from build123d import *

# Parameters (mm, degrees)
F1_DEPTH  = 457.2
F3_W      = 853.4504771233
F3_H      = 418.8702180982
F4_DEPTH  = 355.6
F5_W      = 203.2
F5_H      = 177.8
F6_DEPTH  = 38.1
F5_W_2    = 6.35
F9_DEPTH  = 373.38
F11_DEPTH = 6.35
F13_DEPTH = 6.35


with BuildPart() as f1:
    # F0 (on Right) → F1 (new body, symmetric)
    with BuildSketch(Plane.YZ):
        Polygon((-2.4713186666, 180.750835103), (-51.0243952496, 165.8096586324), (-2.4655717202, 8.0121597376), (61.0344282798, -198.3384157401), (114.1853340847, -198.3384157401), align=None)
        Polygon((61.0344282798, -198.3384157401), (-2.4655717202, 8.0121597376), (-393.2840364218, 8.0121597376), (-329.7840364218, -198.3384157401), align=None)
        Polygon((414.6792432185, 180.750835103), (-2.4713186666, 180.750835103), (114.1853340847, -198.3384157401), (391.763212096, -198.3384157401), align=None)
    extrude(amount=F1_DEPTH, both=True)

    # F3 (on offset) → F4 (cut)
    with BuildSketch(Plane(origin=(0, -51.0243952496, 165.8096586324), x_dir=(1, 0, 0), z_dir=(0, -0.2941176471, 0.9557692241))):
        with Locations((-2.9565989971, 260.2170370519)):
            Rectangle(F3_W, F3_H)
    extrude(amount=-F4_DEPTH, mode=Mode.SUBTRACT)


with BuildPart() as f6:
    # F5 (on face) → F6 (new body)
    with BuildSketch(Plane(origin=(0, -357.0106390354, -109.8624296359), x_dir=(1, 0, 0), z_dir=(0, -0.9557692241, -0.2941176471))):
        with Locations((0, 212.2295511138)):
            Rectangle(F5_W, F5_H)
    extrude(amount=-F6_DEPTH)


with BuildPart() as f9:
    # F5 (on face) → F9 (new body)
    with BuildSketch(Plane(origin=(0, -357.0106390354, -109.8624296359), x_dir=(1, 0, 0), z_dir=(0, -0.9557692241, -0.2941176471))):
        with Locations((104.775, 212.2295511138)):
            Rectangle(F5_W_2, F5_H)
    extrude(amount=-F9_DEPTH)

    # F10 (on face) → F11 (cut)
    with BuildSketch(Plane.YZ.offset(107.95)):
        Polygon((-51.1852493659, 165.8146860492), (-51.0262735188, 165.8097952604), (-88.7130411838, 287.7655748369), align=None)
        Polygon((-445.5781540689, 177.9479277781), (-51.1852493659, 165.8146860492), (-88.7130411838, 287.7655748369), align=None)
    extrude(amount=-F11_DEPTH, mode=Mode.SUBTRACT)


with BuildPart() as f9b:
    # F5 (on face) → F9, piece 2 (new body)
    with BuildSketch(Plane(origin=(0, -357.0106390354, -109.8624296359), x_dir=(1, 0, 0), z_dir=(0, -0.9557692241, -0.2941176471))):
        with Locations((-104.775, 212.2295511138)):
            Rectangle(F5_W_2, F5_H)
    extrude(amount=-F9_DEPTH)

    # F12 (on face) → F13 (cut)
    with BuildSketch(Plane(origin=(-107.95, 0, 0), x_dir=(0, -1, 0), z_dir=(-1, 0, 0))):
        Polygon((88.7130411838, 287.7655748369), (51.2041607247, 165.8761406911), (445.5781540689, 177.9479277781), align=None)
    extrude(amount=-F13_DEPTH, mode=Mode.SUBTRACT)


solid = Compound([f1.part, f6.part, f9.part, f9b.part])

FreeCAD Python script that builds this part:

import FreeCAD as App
import Part
import Sketcher
from FreeCAD import Vector
Q = App.Units.Quantity


def add_polygon(sketch, points):
    """Adds a closed chain of lines whose ends are joined by coincident constraints."""
    first, n = sketch.GeometryCount, len(points)
    for a, b in zip(points, points[1:] + points[:1]):
        sketch.addGeometry(Part.LineSegment(App.Vector(*a, 0), App.Vector(*b, 0)), False)
    for i in range(n):
        sketch.addConstraint(Sketcher.Constraint("Coincident", first + i, 2, first + (i + 1) % n, 1))

doc = App.newDocument("Part")
body = doc.addObject("PartDesign::Body", "Body")

sketch1 = body.newObject("Sketcher::SketchObject", "Sketch")
sketch1.AttachmentSupport = (doc.getObject("YZ_Plane"), [""])
sketch1.MapMode = "FlatFace"
add_polygon(sketch1, [(-2.471319, 180.750835), (-51.024395, 165.809659), (-2.465572, 8.01216), (-393.284036, 8.01216), (-329.784036, -198.338416), (391.763212, -198.338416), (414.679243, 180.750835)])
sketch1.addConstraint([
    Sketcher.Constraint("Horizontal", 2),
    Sketcher.Constraint("Horizontal", 4),
    Sketcher.Constraint("Horizontal", 6),
    Sketcher.Constraint("Perpendicular", 0, 1),
    Sketcher.Constraint("Parallel", 1, 3),
    Sketcher.Constraint("Distance", 0, Q("2 in")),
    Sketcher.Constraint("Distance", 1, Q("6.5 in")),
    Sketcher.Constraint("Distance", 3, Q("8.5 in")),
    Sketcher.Constraint("DistanceX", 2, 2, 3, 2, Q("2.5 in")),
    Sketcher.Constraint("DistanceX", 4, 1, 4, 2, 721.547249),
    Sketcher.Constraint("DistanceX", 6, 2, 6, 1, 417.150562),
    Sketcher.Constraint("Distance", 5, 379.781259),
    Sketcher.Constraint("DistanceY", -1, 1, 0, 2, 165.809659),
    Sketcher.Constraint("DistanceX", 1, 2, -1, 1, 2.465572),
])
pad1 = body.newObject("PartDesign::Pad", "Pad")
pad1.Profile = sketch1
pad1.Length = Q("36 in")
pad1.Midplane = True

sketch2 = body.newObject("Sketcher::SketchObject", "Sketch001")
sketch2.Placement = App.Placement(Vector(0, -51.024395, 165.809659), App.Rotation(Vector(1, 0, 0), Vector(0, 0.955769224, 0.294117647), Vector(0, -0.294117647, 0.955769224), "ZXY"))
add_polygon(sketch2, [(-429.681838, 469.652146), (-429.681838, 50.781928), (423.76864, 50.781928), (423.76864, 469.652146)])
sketch2.addConstraint([
    Sketcher.Constraint("Vertical", 0),
    Sketcher.Constraint("Horizontal", 1),
    Sketcher.Constraint("Vertical", 2),
    Sketcher.Constraint("Horizontal", 3),
    Sketcher.Constraint("DistanceY", 0, 2, 0, 1, 418.870218),
    Sketcher.Constraint("DistanceX", 1, 1, 1, 2, 853.450477),
    Sketcher.Constraint("DistanceX", -1, 1, 1, 2, 423.76864),
    Sketcher.Constraint("DistanceY", -1, 1, 0, 2, 50.781928),
])
pocket1 = body.newObject("PartDesign::Pocket", "Pocket")
pocket1.Profile = sketch2
pocket1.Length = Q("14 in")
body2 = doc.addObject("PartDesign::Body", "Body001")

sketch3 = body2.newObject("Sketcher::SketchObject", "Sketch002")
sketch3.Placement = App.Placement(Vector(0, -357.010639, -109.86243), App.Rotation(Vector(1, 0, 0), Vector(0, -0.294117647, 0.955769224), Vector(0, -0.955769224, -0.294117647), "ZXY"))
add_polygon(sketch3, [(-101.6, 301.129551), (-101.6, 123.329551), (101.6, 123.329551), (101.6, 301.129551)])
sketch3.addConstraint([
    Sketcher.Constraint("Vertical", 0),
    Sketcher.Constraint("Horizontal", 1),
    Sketcher.Constraint("Vertical", 2),
    Sketcher.Constraint("Horizontal", 3),
    Sketcher.Constraint("DistanceX", 1, 1, 1, 2, Q("8 in")),
    Sketcher.Constraint("DistanceY", 0, 2, 0, 1, Q("7 in")),
    Sketcher.Constraint("DistanceX", 0, 2, -1, 1, Q("4 in")),
    Sketcher.Constraint("DistanceY", -1, 1, 0, 2, 123.329551),
])
pad2 = body2.newObject("PartDesign::Pad", "Pad001")
pad2.Profile = sketch3
pad2.Length = Q("1.5 in")
pad2.Reversed = True
body3 = doc.addObject("PartDesign::Body", "Body002")

sketch4 = body3.newObject("Sketcher::SketchObject", "Sketch003")
sketch4.Placement = App.Placement(Vector(0, -357.010639, -109.86243), App.Rotation(Vector(1, 0, 0), Vector(0, -0.294117647, 0.955769224), Vector(0, -0.955769224, -0.294117647), "ZXY"))
add_polygon(sketch4, [(101.6, 301.129551), (101.6, 123.329551), (107.95, 123.329551), (107.95, 301.129551)])
sketch4.addConstraint([
    Sketcher.Constraint("Vertical", 0),
    Sketcher.Constraint("Horizontal", 1),
    Sketcher.Constraint("Vertical", 2),
    Sketcher.Constraint("Horizontal", 3),
    Sketcher.Constraint("DistanceY", 0, 2, 0, 1, Q("7 in")),
    Sketcher.Constraint("DistanceX", -1, 1, 0, 2, Q("4 in")),
    Sketcher.Constraint("DistanceX", 1, 1, 1, 2, Q("0.25 in")),
    Sketcher.Constraint("DistanceY", -1, 1, 0, 2, 123.329551),
])
pad3 = body3.newObject("PartDesign::Pad", "Pad002")
pad3.Profile = sketch4
pad3.Length = Q("14.7 in")
pad3.Reversed = True

sketch5 = body3.newObject("Sketcher::SketchObject", "Sketch004")
sketch5.AttachmentSupport = (doc.getObject("YZ_Plane002"), [""])
sketch5.MapMode = "FlatFace"
sketch5.AttachmentOffset = App.Placement(Vector(0, 0, 4.25 * 25.4), App.Rotation())
add_polygon(sketch5, [(-51.185249, 165.814686), (-51.026274, 165.809795), (-88.713041, 287.765575), (-445.578154, 177.947928)])
sketch5.addConstraint([
    Sketcher.Constraint("Parallel", 0, 3),
    Sketcher.Constraint("Distance", 2, Q("14.7 in")),
    Sketcher.Constraint("Distance", 0, 0.159051),
    Sketcher.Constraint("DistanceX", 1, 2, -1, 1, 88.713041),
    Sketcher.Constraint("DistanceX", 3, 2, -1, 1, 51.185249),
    Sketcher.Constraint("DistanceY", 0, 2, 1, 2, 121.95578),
    Sketcher.Constraint("DistanceX", 2, 2, 0, 2, 394.551881),
    Sketcher.Constraint("DistanceY", -1, 1, 0, 2, 165.809795),
])
pocket2 = body3.newObject("PartDesign::Pocket", "Pocket001")
pocket2.Profile = sketch5
pocket2.Length = Q("0.25 in")
body4 = doc.addObject("PartDesign::Body", "Body003")

sketch6 = body4.newObject("Sketcher::SketchObject", "Sketch005")
sketch6.Placement = App.Placement(Vector(0, -357.010639, -109.86243), App.Rotation(Vector(1, 0, 0), Vector(0, -0.294117647, 0.955769224), Vector(0, -0.955769224, -0.294117647), "ZXY"))
add_polygon(sketch6, [(-107.95, 301.129551), (-107.95, 123.329551), (-101.6, 123.329551), (-101.6, 301.129551)])
sketch6.addConstraint([
    Sketcher.Constraint("Vertical", 0),
    Sketcher.Constraint("Horizontal", 1),
    Sketcher.Constraint("Vertical", 2),
    Sketcher.Constraint("Horizontal", 3),
    Sketcher.Constraint("DistanceY", 0, 2, 0, 1, Q("7 in")),
    Sketcher.Constraint("DistanceX", 1, 2, -1, 1, Q("4 in")),
    Sketcher.Constraint("DistanceX", 1, 1, 1, 2, Q("0.25 in")),
    Sketcher.Constraint("DistanceY", -1, 1, 0, 2, 123.329551),
])
pad4 = body4.newObject("PartDesign::Pad", "Pad003")
pad4.Profile = sketch6
pad4.Length = Q("14.7 in")
pad4.Reversed = True

sketch7 = body4.newObject("Sketcher::SketchObject", "Sketch006")
sketch7.AttachmentSupport = (doc.getObject("YZ_Plane003"), [""])
sketch7.MapMode = "FlatFace"
sketch7.AttachmentOffset = App.Placement(Vector(0, 0, -4.25 * 25.4), App.Rotation())
add_polygon(sketch7, [(-88.713041, 287.765575), (-51.204161, 165.876141), (-445.578154, 177.947928)])
sketch7.addConstraint([
    Sketcher.Constraint("Perpendicular", 0, 2),
    Sketcher.Constraint("Distance", 2, Q("14.7 in")),
    Sketcher.Constraint("Distance", 1, 394.558709),
    Sketcher.Constraint("DistanceX", 0, 2, -1, 1, 51.204161),
    Sketcher.Constraint("DistanceY", -1, 1, 0, 2, 165.876141),
    Sketcher.Constraint("DistanceX", 2, 2, -1, 1, 88.713041),
])
pocket3 = body4.newObject("PartDesign::Pocket", "Pocket002")
pocket3.Profile = sketch7
pocket3.Length = Q("0.25 in")
pocket3.Reversed = True

doc.recompute()
